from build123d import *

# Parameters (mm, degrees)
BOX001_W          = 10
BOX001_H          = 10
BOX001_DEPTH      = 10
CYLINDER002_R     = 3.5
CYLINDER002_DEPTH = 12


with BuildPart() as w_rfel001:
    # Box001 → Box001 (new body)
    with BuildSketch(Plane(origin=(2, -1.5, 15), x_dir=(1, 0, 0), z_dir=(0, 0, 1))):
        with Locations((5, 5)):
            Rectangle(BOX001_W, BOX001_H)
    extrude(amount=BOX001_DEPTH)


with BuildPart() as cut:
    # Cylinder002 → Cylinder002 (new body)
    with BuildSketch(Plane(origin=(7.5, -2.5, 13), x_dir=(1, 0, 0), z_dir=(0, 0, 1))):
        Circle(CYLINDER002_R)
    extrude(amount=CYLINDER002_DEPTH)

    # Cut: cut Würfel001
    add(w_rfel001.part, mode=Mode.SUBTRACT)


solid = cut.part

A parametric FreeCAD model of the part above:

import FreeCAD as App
import Part
import Sketcher
from FreeCAD import Vector

doc = App.newDocument("Part")
body = doc.addObject("PartDesign::Body", "Body")

# Sketch on XY plane
sketch1 = body.newObject("Sketcher::SketchObject", "Sketch")
sketch1.AttachmentSupport = (doc.getObject("XY_Plane"), [""])
sketch1.MapMode = "FlatFace"
sketch1.AttachmentOffset = App.Placement(Vector(0, 0, 15), App.Rotation())
sketch1.addGeometry([
    Part.LineSegment(Vector(2, 8, 0), Vector(2, -2, 0)),
    Part.LineSegment(Vector(2, -2, 0), Vector(12, -2, 0)),
    Part.LineSegment(Vector(12, -2, 0), Vector(12, 8, 0)),
    Part.LineSegment(Vector(12, 8, 0), Vector(2, 8, 0)),
], False)
sketch1.addConstraint([
    Sketcher.Constraint("Coincident", 0, 2, 1, 1),
    Sketcher.Constraint("Coincident", 1, 2, 2, 1),
    Sketcher.Constraint("Coincident", 2, 2, 3, 1),
    Sketcher.Constraint("Coincident", 3, 2, 0, 1),
    Sketcher.Constraint("Vertical", 0),
    Sketcher.Constraint("Horizontal", 1),
    Sketcher.Constraint("Vertical", 2),
    Sketcher.Constraint("Horizontal", 3),
    Sketcher.Constraint("Equal", 3, 0),
    Sketcher.Constraint("DistanceX", 1, 1, 1, 2, 10.0),
    Sketcher.Constraint("DistanceX", -1, 1, 0, 2, 2.0),
    Sketcher.Constraint("DistanceY", 0, 2, -1, 1, 1.5),
])
pad1 = body.newObject("PartDesign::Pad", "Pad")
pad1.Profile = sketch1
pad1.Length = 10
body2 = doc.addObject("PartDesign::Body", "Body001")

# Sketch on XY plane
sketch2 = body2.newObject("Sketcher::SketchObject", "Sketch001")
sketch2.AttachmentSupport = (doc.getObject("XY_Plane001"), [""])
sketch2.MapMode = "FlatFace"
sketch2.AttachmentOffset = App.Placement(Vector(0, 0, 13), App.Rotation())
sketch2.addGeometry(Part.Circle(Vector(7.5, -2.5, 0), Vector(0, 0, 1), 3.5), False)
sketch2.addConstraint([
    Sketcher.Constraint("Diameter", 0, 7.0),
    Sketcher.Constraint("DistanceX", -1, 1, 0, 3, 7.5),
    Sketcher.Constraint("DistanceY", 0, 3, -1, 1, 2.5),
])
pad2 = body2.newObject("PartDesign::Pad", "Pad001")
pad2.Profile = sketch2
pad2.Length = 12
doc.recompute()

boolean = body2.newObject("PartDesign::Boolean", "Boolean")
boolean.Type = "Cut"
boolean.addObjects([body])

doc.recompute()
